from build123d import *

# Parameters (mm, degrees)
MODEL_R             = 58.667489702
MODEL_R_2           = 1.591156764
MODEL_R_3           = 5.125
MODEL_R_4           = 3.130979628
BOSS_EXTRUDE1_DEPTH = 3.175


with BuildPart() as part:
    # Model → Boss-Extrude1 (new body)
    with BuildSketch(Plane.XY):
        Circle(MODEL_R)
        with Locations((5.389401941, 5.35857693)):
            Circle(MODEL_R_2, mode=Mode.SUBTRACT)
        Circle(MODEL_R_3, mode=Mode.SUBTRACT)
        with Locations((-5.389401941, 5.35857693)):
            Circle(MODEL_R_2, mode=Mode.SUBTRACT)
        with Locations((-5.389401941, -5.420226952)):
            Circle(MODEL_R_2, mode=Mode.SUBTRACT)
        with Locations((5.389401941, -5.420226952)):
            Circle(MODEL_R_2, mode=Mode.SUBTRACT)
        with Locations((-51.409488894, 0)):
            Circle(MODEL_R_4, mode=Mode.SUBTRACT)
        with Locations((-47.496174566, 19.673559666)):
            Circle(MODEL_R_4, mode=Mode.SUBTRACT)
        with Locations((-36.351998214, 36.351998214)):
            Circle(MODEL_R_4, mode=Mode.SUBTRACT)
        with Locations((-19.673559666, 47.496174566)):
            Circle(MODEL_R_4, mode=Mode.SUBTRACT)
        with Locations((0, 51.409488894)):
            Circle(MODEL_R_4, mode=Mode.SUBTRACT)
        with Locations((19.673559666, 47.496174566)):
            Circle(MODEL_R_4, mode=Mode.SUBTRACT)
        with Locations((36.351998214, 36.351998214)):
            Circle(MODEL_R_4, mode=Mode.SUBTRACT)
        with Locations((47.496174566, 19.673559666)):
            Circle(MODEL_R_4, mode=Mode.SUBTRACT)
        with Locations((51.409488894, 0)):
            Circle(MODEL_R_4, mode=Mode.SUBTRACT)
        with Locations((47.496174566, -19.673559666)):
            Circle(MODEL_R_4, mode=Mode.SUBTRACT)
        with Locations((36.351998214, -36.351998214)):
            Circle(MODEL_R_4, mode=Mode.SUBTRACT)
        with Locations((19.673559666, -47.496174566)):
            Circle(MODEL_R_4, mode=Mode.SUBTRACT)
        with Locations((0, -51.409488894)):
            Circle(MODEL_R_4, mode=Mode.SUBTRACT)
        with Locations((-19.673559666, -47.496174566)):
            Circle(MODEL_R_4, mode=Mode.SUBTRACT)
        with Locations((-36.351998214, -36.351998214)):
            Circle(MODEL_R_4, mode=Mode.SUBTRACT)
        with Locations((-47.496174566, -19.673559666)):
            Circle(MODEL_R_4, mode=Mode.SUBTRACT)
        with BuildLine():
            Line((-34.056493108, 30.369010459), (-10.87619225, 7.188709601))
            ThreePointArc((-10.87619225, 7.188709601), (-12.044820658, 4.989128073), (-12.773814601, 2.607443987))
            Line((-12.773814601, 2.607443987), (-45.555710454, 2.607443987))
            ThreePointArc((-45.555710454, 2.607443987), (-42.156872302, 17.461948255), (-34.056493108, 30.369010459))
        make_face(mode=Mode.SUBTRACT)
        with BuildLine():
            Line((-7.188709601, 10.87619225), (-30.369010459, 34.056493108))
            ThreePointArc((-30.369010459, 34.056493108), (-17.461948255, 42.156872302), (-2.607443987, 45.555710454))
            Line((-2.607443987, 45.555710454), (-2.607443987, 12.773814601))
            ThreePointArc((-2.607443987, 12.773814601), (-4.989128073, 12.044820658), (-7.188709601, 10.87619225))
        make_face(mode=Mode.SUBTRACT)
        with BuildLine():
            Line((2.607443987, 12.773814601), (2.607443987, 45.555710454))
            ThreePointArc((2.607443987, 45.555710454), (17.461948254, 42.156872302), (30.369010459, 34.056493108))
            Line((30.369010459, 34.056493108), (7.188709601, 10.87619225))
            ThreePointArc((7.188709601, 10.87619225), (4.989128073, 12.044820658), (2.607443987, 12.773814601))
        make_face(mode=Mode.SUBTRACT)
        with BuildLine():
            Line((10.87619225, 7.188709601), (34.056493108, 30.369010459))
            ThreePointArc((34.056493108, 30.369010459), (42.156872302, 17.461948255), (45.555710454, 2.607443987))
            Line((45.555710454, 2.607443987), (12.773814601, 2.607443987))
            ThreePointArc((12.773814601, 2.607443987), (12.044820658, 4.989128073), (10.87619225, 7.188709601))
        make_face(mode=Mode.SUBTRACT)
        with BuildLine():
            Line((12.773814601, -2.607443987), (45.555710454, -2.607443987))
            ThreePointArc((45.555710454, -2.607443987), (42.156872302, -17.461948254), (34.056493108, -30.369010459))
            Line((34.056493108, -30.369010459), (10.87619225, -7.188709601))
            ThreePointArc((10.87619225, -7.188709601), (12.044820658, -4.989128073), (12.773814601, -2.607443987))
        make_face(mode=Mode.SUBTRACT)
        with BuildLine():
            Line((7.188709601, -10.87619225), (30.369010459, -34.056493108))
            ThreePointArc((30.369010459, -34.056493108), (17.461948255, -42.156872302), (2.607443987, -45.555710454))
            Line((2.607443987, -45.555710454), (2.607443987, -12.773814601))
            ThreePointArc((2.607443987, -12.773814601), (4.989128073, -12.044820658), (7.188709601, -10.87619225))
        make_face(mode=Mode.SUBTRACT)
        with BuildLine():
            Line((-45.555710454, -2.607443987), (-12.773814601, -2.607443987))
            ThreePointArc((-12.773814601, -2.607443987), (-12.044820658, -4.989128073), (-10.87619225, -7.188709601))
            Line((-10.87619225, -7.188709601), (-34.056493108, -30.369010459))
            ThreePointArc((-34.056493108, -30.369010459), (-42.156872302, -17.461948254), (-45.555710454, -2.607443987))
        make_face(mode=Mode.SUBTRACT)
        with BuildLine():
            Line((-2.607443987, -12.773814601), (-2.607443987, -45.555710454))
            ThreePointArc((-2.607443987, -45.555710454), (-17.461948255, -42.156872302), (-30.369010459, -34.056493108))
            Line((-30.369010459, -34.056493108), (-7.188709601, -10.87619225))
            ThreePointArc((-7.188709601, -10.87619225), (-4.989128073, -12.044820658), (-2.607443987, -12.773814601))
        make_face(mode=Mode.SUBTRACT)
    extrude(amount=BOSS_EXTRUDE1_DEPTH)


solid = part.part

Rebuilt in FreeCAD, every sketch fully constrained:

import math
import FreeCAD as App
import Part
import Sketcher

V = App.Vector
Q = App.Units.Quantity

doc = App.newDocument("Part")
params = doc.addObject("Spreadsheet::Sheet", "Params")
for row, (alias, value) in enumerate([
    ("pad1_length", "0.125 in"),
], start=1):
    params.set(f"A{row}", alias)
    params.set(f"B{row}", "=" + value)
    params.setAlias(f"B{row}", alias)

body = doc.addObject("PartDesign::Body", "Body")

# Sketch on XY plane
sketch1 = doc.addObject("Sketcher::SketchObject", "Sketch")
body.addObject(sketch1)
sketch1.AttachmentSupport = (doc.XY_Plane, [""])
sketch1.MapMode = "FlatFace"
sketch1.addGeometry([
    Part.Circle(V(0, 0, 0), V(0, 0, 1), 58.66749),  # 0
    Part.Circle(V(-36.351998, -36.351998, 0), V(0, 0, 1), 3.13098),  # 1
    Part.Circle(V(-19.67356, -47.496175, 0), V(0, 0, 1), 3.13098),  # 2
    Part.Circle(V(0, -51.409489, 0), V(0, 0, 1), 3.13098),  # 3
    Part.ArcOfCircle(Part.Circle(V(0, 0, 0), V(0, 0, 1), 13.03722), math.radians(-123.463041), math.radians(-101.536959)),  # 4
    Part.LineSegment(V(-2.607444, -12.773815, 0), V(-2.607444, -45.55571, 0)),  # 5
    Part.ArcOfCircle(Part.Circle(V(0, 0, 0), V(0, 0, 1), 45.63027), math.radians(-131.724171), math.radians(-93.275829)),  # 6
    Part.LineSegment(V(-30.36901, -34.056493, 0), V(-7.18871, -10.876192, 0)),  # 7
    Part.Circle(V(-47.496175, -19.67356, 0), V(0, 0, 1), 3.13098),  # 8
    Part.ArcOfCircle(Part.Circle(V(0, 0, 0), V(0, 0, 1), 45.63027), math.radians(-176.724171), math.radians(-138.275829)),  # 9
    Part.LineSegment(V(-45.55571, -2.607444, 0), V(-12.773815, -2.607444, 0)),  # 10
    Part.ArcOfCircle(Part.Circle(V(0, 0, 0), V(0, 0, 1), 13.03722), math.radians(-168.463041), math.radians(-146.536959)),  # 11
    Part.LineSegment(V(-10.876192, -7.18871, 0), V(-34.056493, -30.36901, 0)),  # 12
    Part.Circle(V(-51.409489, 0, 0), V(0, 0, 1), 3.13098),  # 13
    Part.Circle(V(-5.389402, -5.420227, 0), V(0, 0, 1), 1.591157),  # 14
    Part.Circle(V(0, 0, 0), V(0, 0, 1), 5.125),  # 15
    Part.Circle(V(19.67356, -47.496175, 0), V(0, 0, 1), 3.13098),  # 16
    Part.ArcOfCircle(Part.Circle(V(0, 0, 0), V(0, 0, 1), 13.03722), math.radians(-78.463041), math.radians(-56.536959)),  # 17
    Part.LineSegment(V(7.18871, -10.876192, 0), V(30.36901, -34.056493, 0)),  # 18
    Part.ArcOfCircle(Part.Circle(V(0, 0, 0), V(0, 0, 1), 45.63027), math.radians(-86.724171), math.radians(-48.275829)),  # 19
    Part.LineSegment(V(2.607444, -45.55571, 0), V(2.607444, -12.773815, 0)),  # 20
    Part.Circle(V(36.351998, -36.351998, 0), V(0, 0, 1), 3.13098),  # 21
    Part.Circle(V(5.389402, -5.420227, 0), V(0, 0, 1), 1.591157),  # 22
    Part.ArcOfCircle(Part.Circle(V(0, 0, 0), V(0, 0, 1), 13.03722), math.radians(-33.463041), math.radians(-11.536959)),  # 23
    Part.LineSegment(V(12.773815, -2.607444, 0), V(45.55571, -2.607444, 0)),  # 24
    Part.ArcOfCircle(Part.Circle(V(0, 0, 0), V(0, 0, 1), 45.63027), math.radians(-41.724171), math.radians(-3.275829)),  # 25
    Part.LineSegment(V(34.056493, -30.36901, 0), V(10.876192, -7.18871, 0)),  # 26
    Part.Circle(V(47.496175, -19.67356, 0), V(0, 0, 1), 3.13098),  # 27
    Part.Circle(V(51.409489, 0, 0), V(0, 0, 1), 3.13098),  # 28
    Part.Circle(V(-47.496175, 19.67356, 0), V(0, 0, 1), 3.13098),  # 29
    Part.ArcOfCircle(Part.Circle(V(0, 0, 0), V(0, 0, 1), 45.63027), math.radians(138.275829), math.radians(176.724171)),  # 30
    Part.LineSegment(V(-34.056493, 30.36901, 0), V(-10.876192, 7.18871, 0)),  # 31
    Part.ArcOfCircle(Part.Circle(V(0, 0, 0), V(0, 0, 1), 13.03722), math.radians(146.536959), math.radians(168.463041)),  # 32
    Part.LineSegment(V(-12.773815, 2.607444, 0), V(-45.55571, 2.607444, 0)),  # 33
    Part.Circle(V(-5.389402, 5.358577, 0), V(0, 0, 1), 1.591157),  # 34
    Part.Circle(V(-36.351998, 36.351998, 0), V(0, 0, 1), 3.13098),  # 35
    Part.ArcOfCircle(Part.Circle(V(0, 0, 0), V(0, 0, 1), 13.03722), math.radians(101.536959), math.radians(123.463041)),  # 36
    Part.LineSegment(V(-7.18871, 10.876192, 0), V(-30.36901, 34.056493, 0)),  # 37
    Part.ArcOfCircle(Part.Circle(V(0, 0, 0), V(0, 0, 1), 45.63027), math.radians(93.275829), math.radians(131.724171)),  # 38
    Part.LineSegment(V(-2.607444, 45.55571, 0), V(-2.607444, 12.773815, 0)),  # 39
    Part.Circle(V(-19.67356, 47.496175, 0), V(0, 0, 1), 3.13098),  # 40
    Part.Circle(V(0, 51.409489, 0), V(0, 0, 1), 3.13098),  # 41
    Part.Circle(V(5.389402, 5.358577, 0), V(0, 0, 1), 1.591157),  # 42
    Part.ArcOfCircle(Part.Circle(V(0, 0, 0), V(0, 0, 1), 13.03722), math.radians(11.536959), math.radians(33.463041)),  # 43
    Part.LineSegment(V(10.876192, 7.18871, 0), V(34.056493, 30.36901, 0)),  # 44
    Part.ArcOfCircle(Part.Circle(V(0, 0, 0), V(0, 0, 1), 45.63027), math.radians(3.275829), math.radians(41.724171)),  # 45
    Part.LineSegment(V(45.55571, 2.607444, 0), V(12.773815, 2.607444, 0)),  # 46
    Part.Circle(V(47.496175, 19.67356, 0), V(0, 0, 1), 3.13098),  # 47
    Part.ArcOfCircle(Part.Circle(V(0, 0, 0), V(0, 0, 1), 13.03722), math.radians(56.536959), math.radians(78.463041)),  # 48
    Part.LineSegment(V(2.607444, 12.773815, 0), V(2.607444, 45.55571, 0)),  # 49
    Part.ArcOfCircle(Part.Circle(V(0, 0, 0), V(0, 0, 1), 45.63027), math.radians(48.275829), math.radians(86.724171)),  # 50
    Part.LineSegment(V(30.36901, 34.056493, 0), V(7.18871, 10.876192, 0)),  # 51
    Part.Circle(V(19.67356, 47.496175, 0), V(0, 0, 1), 3.13098),  # 52
    Part.Circle(V(36.351998, 36.351998, 0), V(0, 0, 1), 3.13098),  # 53
], False)
sketch1.addConstraint([
    Sketcher.Constraint("Coincident", 4, 2, 5, 1),
    Sketcher.Constraint("Coincident", 5, 2, 6, 2),
    Sketcher.Constraint("Coincident", 6, 1, 7, 1),
    Sketcher.Constraint("Coincident", 7, 2, 4, 1),
    Sketcher.Constraint("Coincident", 9, 1, 10, 1),
    Sketcher.Constraint("Coincident", 10, 2, 11, 1),
    Sketcher.Constraint("Coincident", 11, 2, 12, 1),
    Sketcher.Constraint("Coincident", 12, 2, 9, 2),
    Sketcher.Constraint("Coincident", 17, 2, 18, 1),
    Sketcher.Constraint("Coincident", 18, 2, 19, 2),
    Sketcher.Constraint("Coincident", 19, 1, 20, 1),
    Sketcher.Constraint("Coincident", 20, 2, 17, 1),
    Sketcher.Constraint("Coincident", 23, 2, 24, 1),
    Sketcher.Constraint("Coincident", 24, 2, 25, 2),
    Sketcher.Constraint("Coincident", 25, 1, 26, 1),
    Sketcher.Constraint("Coincident", 26, 2, 23, 1),
    Sketcher.Constraint("Coincident", 30, 1, 31, 1),
    Sketcher.Constraint("Coincident", 31, 2, 32, 1),
    Sketcher.Constraint("Coincident", 32, 2, 33, 1),
    Sketcher.Constraint("Coincident", 33, 2, 30, 2),
    Sketcher.Constraint("Coincident", 36, 2, 37, 1),
    Sketcher.Constraint("Coincident", 37, 2, 38, 2),
    Sketcher.Constraint("Coincident", 38, 1, 39, 1),
    Sketcher.Constraint("Coincident", 39, 2, 36, 1),
    Sketcher.Constraint("Coincident", 43, 2, 44, 1),
    Sketcher.Constraint("Coincident", 44, 2, 45, 2),
    Sketcher.Constraint("Coincident", 45, 1, 46, 1),
    Sketcher.Constraint("Coincident", 46, 2, 43, 1),
    Sketcher.Constraint("Coincident", 48, 2, 49, 1),
    Sketcher.Constraint("Coincident", 49, 2, 50, 2),
    Sketcher.Constraint("Coincident", 50, 1, 51, 1),
    Sketcher.Constraint("Coincident", 51, 2, 48, 1),
    Sketcher.Constraint("Vertical", 5),
    Sketcher.Constraint("Horizontal", 10),
    Sketcher.Constraint("Vertical", 20),
    Sketcher.Constraint("Horizontal", 24),
    Sketcher.Constraint("Horizontal", 33),
    Sketcher.Constraint("Vertical", 39),
    Sketcher.Constraint("Horizontal", 46),
    Sketcher.Constraint("Vertical", 49),
    Sketcher.Constraint("Coincident", 0, 3, -1, 1),
    Sketcher.Constraint("Coincident", 4, 3, -1, 1),
    Sketcher.Constraint("Coincident", 6, 3, -1, 1),
    Sketcher.Constraint("Coincident", 9, 3, -1, 1),
    Sketcher.Constraint("Coincident", 11, 3, -1, 1),
    Sketcher.Constraint("Coincident", 15, 3, -1, 1),
    Sketcher.Constraint("Coincident", 17, 3, -1, 1),
    Sketcher.Constraint("Coincident", 19, 3, -1, 1),
    Sketcher.Constraint("Coincident", 23, 3, -1, 1),
    Sketcher.Constraint("Coincident", 25, 3, -1, 1),
    Sketcher.Constraint("Coincident", 30, 3, -1, 1),
    Sketcher.Constraint("Coincident", 32, 3, -1, 1),
    Sketcher.Constraint("Coincident", 36, 3, -1, 1),
    Sketcher.Constraint("Coincident", 38, 3, -1, 1),
    Sketcher.Constraint("Coincident", 43, 3, -1, 1),
    Sketcher.Constraint("Coincident", 45, 3, -1, 1),
    Sketcher.Constraint("Coincident", 48, 3, -1, 1),
    Sketcher.Constraint("Coincident", 50, 3, -1, 1),
    Sketcher.Constraint("Equal", 1, 2),
    Sketcher.Constraint("Equal", 2, 3),
    Sketcher.Constraint("Equal", 3, 8),
    Sketcher.Constraint("Equal", 6, 9),
    Sketcher.Constraint("Equal", 4, 11),
    Sketcher.Constraint("Equal", 8, 13),
    Sketcher.Constraint("Equal", 13, 16),
    Sketcher.Constraint("Equal", 11, 17),
    Sketcher.Constraint("Equal", 9, 19),
    Sketcher.Constraint("Equal", 16, 21),
    Sketcher.Constraint("Equal", 14, 22),
    Sketcher.Constraint("Equal", 17, 23),
    Sketcher.Constraint("Equal", 19, 25),
    Sketcher.Constraint("Equal", 21, 27),
    Sketcher.Constraint("Equal", 27, 28),
    Sketcher.Constraint("Equal", 28, 29),
    Sketcher.Constraint("Equal", 25, 30),
    Sketcher.Constraint("Equal", 23, 32),
    Sketcher.Constraint("Equal", 22, 34),
    Sketcher.Constraint("Equal", 29, 35),
    Sketcher.Constraint("Equal", 32, 36),
    Sketcher.Constraint("Equal", 30, 38),
    Sketcher.Constraint("Equal", 35, 40),
    Sketcher.Constraint("Equal", 40, 41),
    Sketcher.Constraint("Equal", 34, 42),
    Sketcher.Constraint("Equal", 36, 43),
    Sketcher.Constraint("Equal", 38, 45),
    Sketcher.Constraint("Equal", 41, 47),
    Sketcher.Constraint("Equal", 43, 48),
    Sketcher.Constraint("Equal", 45, 50),
    Sketcher.Constraint("Equal", 47, 52),
    Sketcher.Constraint("Equal", 52, 53),
    Sketcher.Constraint("Symmetric", 13, 3, 28, 3, -1, 1),
    Sketcher.Constraint("Symmetric", 27, 3, 29, 3, -1, 1),
    Sketcher.Constraint("Symmetric", 21, 3, 35, 3, -1, 1),
    Sketcher.Constraint("Symmetric", 16, 3, 40, 3, -1, 1),
    Sketcher.Constraint("Symmetric", 3, 3, 41, 3, -1, 1),
    Sketcher.Constraint("Symmetric", 8, 3, 47, 3, -1, 1),
    Sketcher.Constraint("Symmetric", 2, 3, 52, 3, -1, 1),
    Sketcher.Constraint("Symmetric", 1, 3, 53, 3, -1, 1),
    Sketcher.Constraint("Symmetric", 2, 3, 16, 3, -2),
    Sketcher.Constraint("Symmetric", 1, 3, 21, 3, -2),
    Sketcher.Constraint("Symmetric", 14, 3, 22, 3, -2),
    Sketcher.Constraint("Symmetric", 8, 3, 27, 3, -2),
    Sketcher.Constraint("Symmetric", 34, 3, 42, 3, -2),
    Sketcher.Constraint("PointOnObject", 3, 3, -2),
    Sketcher.Constraint("PointOnObject", 13, 3, -1),
    Sketcher.Constraint("Parallel", 7, 12),
    Sketcher.Constraint("Perpendicular", 12, 18),
    Sketcher.Constraint("Parallel", 18, 26),
    Sketcher.Constraint("Parallel", 26, 31),
    Sketcher.Constraint("Parallel", 31, 37),
    Sketcher.Constraint("Perpendicular", 37, 44),
    Sketcher.Constraint("Parallel", 44, 51),
    Sketcher.Constraint("Horizontal", 7, 2, 17, 2),
    Sketcher.Constraint("Horizontal", 6, 1, 18, 2),
    Sketcher.Constraint("Horizontal", 5, 2, 19, 1),
    Sketcher.Constraint("Horizontal", 10, 2, 23, 2),
    Sketcher.Constraint("Horizontal", 12, 2, 25, 1),
    Sketcher.Constraint("Horizontal", 31, 2, 43, 2),
    Sketcher.Constraint("Horizontal", 33, 2, 45, 1),
    Sketcher.Constraint("Horizontal", 39, 2, 48, 2),
    Sketcher.Constraint("Horizontal", 37, 2, 50, 1),
    Sketcher.Constraint("Vertical", 14, 3, 34, 3),
    Sketcher.Constraint("Vertical", 12, 2, 30, 1),
    Sketcher.Constraint("Vertical", 10, 2, 32, 2),
    Sketcher.Constraint("Vertical", 7, 2, 36, 2),
    Sketcher.Constraint("Vertical", 5, 2, 38, 1),
    Sketcher.Constraint("Equal", 46, 5),
    Sketcher.Constraint("Equal", 7, 12),
    Sketcher.Constraint("Diameter", 15, Q("10.25 mm")),
    Sketcher.Constraint("Diameter", 0, Q("117.334979 mm")),
    Sketcher.Constraint("Diameter", 1, Q("6.261959 mm")),
    Sketcher.Constraint("Radius", 4, Q("13.03722 mm")),
    Sketcher.Constraint("Radius", 6, Q("45.63027 mm")),
    Sketcher.Constraint("Diameter", 14, Q("3.182314 mm")),
    Sketcher.Constraint("DistanceX", 1, 3, -1, 1, Q("36.351998 mm")),
    Sketcher.Constraint("DistanceY", 1, 3, -1, 1, Q("36.351998 mm")),
    Sketcher.Constraint("DistanceX", 14, 3, -1, 1, Q("5.389402 mm")),
    Sketcher.Constraint("DistanceX", 10, 1, 10, 2, Q("32.781896 mm")),
    Sketcher.Constraint("DistanceX", 2, 3, -1, 1, Q("19.67356 mm")),
    Sketcher.Constraint("DistanceY", 3, 3, -1, 1, Q("51.409489 mm")),
    Sketcher.Constraint("DistanceY", 8, 3, -1, 1, Q("19.67356 mm")),
    Sketcher.Constraint("DistanceX", 13, 3, -1, 1, Q("51.409489 mm")),
    Sketcher.Constraint("DistanceX", 6, 1, -1, 1, Q("30.36901 mm")),
    Sketcher.Constraint("DistanceY", 2, 3, -1, 1, Q("47.496175 mm")),
    Sketcher.Constraint("DistanceX", 8, 3, -1, 1, Q("47.496175 mm")),
    Sketcher.Constraint("DistanceY", 14, 3, -1, 1, Q("5.420227 mm")),
    Sketcher.Constraint("DistanceY", -1, 1, 34, 3, Q("5.358577 mm")),
])
pad1 = doc.addObject("PartDesign::Pad", "Pad")
body.addObject(pad1)
pad1.Profile = sketch1
pad1.setExpression("Length", "Params.pad1_length")

doc.recompute()
